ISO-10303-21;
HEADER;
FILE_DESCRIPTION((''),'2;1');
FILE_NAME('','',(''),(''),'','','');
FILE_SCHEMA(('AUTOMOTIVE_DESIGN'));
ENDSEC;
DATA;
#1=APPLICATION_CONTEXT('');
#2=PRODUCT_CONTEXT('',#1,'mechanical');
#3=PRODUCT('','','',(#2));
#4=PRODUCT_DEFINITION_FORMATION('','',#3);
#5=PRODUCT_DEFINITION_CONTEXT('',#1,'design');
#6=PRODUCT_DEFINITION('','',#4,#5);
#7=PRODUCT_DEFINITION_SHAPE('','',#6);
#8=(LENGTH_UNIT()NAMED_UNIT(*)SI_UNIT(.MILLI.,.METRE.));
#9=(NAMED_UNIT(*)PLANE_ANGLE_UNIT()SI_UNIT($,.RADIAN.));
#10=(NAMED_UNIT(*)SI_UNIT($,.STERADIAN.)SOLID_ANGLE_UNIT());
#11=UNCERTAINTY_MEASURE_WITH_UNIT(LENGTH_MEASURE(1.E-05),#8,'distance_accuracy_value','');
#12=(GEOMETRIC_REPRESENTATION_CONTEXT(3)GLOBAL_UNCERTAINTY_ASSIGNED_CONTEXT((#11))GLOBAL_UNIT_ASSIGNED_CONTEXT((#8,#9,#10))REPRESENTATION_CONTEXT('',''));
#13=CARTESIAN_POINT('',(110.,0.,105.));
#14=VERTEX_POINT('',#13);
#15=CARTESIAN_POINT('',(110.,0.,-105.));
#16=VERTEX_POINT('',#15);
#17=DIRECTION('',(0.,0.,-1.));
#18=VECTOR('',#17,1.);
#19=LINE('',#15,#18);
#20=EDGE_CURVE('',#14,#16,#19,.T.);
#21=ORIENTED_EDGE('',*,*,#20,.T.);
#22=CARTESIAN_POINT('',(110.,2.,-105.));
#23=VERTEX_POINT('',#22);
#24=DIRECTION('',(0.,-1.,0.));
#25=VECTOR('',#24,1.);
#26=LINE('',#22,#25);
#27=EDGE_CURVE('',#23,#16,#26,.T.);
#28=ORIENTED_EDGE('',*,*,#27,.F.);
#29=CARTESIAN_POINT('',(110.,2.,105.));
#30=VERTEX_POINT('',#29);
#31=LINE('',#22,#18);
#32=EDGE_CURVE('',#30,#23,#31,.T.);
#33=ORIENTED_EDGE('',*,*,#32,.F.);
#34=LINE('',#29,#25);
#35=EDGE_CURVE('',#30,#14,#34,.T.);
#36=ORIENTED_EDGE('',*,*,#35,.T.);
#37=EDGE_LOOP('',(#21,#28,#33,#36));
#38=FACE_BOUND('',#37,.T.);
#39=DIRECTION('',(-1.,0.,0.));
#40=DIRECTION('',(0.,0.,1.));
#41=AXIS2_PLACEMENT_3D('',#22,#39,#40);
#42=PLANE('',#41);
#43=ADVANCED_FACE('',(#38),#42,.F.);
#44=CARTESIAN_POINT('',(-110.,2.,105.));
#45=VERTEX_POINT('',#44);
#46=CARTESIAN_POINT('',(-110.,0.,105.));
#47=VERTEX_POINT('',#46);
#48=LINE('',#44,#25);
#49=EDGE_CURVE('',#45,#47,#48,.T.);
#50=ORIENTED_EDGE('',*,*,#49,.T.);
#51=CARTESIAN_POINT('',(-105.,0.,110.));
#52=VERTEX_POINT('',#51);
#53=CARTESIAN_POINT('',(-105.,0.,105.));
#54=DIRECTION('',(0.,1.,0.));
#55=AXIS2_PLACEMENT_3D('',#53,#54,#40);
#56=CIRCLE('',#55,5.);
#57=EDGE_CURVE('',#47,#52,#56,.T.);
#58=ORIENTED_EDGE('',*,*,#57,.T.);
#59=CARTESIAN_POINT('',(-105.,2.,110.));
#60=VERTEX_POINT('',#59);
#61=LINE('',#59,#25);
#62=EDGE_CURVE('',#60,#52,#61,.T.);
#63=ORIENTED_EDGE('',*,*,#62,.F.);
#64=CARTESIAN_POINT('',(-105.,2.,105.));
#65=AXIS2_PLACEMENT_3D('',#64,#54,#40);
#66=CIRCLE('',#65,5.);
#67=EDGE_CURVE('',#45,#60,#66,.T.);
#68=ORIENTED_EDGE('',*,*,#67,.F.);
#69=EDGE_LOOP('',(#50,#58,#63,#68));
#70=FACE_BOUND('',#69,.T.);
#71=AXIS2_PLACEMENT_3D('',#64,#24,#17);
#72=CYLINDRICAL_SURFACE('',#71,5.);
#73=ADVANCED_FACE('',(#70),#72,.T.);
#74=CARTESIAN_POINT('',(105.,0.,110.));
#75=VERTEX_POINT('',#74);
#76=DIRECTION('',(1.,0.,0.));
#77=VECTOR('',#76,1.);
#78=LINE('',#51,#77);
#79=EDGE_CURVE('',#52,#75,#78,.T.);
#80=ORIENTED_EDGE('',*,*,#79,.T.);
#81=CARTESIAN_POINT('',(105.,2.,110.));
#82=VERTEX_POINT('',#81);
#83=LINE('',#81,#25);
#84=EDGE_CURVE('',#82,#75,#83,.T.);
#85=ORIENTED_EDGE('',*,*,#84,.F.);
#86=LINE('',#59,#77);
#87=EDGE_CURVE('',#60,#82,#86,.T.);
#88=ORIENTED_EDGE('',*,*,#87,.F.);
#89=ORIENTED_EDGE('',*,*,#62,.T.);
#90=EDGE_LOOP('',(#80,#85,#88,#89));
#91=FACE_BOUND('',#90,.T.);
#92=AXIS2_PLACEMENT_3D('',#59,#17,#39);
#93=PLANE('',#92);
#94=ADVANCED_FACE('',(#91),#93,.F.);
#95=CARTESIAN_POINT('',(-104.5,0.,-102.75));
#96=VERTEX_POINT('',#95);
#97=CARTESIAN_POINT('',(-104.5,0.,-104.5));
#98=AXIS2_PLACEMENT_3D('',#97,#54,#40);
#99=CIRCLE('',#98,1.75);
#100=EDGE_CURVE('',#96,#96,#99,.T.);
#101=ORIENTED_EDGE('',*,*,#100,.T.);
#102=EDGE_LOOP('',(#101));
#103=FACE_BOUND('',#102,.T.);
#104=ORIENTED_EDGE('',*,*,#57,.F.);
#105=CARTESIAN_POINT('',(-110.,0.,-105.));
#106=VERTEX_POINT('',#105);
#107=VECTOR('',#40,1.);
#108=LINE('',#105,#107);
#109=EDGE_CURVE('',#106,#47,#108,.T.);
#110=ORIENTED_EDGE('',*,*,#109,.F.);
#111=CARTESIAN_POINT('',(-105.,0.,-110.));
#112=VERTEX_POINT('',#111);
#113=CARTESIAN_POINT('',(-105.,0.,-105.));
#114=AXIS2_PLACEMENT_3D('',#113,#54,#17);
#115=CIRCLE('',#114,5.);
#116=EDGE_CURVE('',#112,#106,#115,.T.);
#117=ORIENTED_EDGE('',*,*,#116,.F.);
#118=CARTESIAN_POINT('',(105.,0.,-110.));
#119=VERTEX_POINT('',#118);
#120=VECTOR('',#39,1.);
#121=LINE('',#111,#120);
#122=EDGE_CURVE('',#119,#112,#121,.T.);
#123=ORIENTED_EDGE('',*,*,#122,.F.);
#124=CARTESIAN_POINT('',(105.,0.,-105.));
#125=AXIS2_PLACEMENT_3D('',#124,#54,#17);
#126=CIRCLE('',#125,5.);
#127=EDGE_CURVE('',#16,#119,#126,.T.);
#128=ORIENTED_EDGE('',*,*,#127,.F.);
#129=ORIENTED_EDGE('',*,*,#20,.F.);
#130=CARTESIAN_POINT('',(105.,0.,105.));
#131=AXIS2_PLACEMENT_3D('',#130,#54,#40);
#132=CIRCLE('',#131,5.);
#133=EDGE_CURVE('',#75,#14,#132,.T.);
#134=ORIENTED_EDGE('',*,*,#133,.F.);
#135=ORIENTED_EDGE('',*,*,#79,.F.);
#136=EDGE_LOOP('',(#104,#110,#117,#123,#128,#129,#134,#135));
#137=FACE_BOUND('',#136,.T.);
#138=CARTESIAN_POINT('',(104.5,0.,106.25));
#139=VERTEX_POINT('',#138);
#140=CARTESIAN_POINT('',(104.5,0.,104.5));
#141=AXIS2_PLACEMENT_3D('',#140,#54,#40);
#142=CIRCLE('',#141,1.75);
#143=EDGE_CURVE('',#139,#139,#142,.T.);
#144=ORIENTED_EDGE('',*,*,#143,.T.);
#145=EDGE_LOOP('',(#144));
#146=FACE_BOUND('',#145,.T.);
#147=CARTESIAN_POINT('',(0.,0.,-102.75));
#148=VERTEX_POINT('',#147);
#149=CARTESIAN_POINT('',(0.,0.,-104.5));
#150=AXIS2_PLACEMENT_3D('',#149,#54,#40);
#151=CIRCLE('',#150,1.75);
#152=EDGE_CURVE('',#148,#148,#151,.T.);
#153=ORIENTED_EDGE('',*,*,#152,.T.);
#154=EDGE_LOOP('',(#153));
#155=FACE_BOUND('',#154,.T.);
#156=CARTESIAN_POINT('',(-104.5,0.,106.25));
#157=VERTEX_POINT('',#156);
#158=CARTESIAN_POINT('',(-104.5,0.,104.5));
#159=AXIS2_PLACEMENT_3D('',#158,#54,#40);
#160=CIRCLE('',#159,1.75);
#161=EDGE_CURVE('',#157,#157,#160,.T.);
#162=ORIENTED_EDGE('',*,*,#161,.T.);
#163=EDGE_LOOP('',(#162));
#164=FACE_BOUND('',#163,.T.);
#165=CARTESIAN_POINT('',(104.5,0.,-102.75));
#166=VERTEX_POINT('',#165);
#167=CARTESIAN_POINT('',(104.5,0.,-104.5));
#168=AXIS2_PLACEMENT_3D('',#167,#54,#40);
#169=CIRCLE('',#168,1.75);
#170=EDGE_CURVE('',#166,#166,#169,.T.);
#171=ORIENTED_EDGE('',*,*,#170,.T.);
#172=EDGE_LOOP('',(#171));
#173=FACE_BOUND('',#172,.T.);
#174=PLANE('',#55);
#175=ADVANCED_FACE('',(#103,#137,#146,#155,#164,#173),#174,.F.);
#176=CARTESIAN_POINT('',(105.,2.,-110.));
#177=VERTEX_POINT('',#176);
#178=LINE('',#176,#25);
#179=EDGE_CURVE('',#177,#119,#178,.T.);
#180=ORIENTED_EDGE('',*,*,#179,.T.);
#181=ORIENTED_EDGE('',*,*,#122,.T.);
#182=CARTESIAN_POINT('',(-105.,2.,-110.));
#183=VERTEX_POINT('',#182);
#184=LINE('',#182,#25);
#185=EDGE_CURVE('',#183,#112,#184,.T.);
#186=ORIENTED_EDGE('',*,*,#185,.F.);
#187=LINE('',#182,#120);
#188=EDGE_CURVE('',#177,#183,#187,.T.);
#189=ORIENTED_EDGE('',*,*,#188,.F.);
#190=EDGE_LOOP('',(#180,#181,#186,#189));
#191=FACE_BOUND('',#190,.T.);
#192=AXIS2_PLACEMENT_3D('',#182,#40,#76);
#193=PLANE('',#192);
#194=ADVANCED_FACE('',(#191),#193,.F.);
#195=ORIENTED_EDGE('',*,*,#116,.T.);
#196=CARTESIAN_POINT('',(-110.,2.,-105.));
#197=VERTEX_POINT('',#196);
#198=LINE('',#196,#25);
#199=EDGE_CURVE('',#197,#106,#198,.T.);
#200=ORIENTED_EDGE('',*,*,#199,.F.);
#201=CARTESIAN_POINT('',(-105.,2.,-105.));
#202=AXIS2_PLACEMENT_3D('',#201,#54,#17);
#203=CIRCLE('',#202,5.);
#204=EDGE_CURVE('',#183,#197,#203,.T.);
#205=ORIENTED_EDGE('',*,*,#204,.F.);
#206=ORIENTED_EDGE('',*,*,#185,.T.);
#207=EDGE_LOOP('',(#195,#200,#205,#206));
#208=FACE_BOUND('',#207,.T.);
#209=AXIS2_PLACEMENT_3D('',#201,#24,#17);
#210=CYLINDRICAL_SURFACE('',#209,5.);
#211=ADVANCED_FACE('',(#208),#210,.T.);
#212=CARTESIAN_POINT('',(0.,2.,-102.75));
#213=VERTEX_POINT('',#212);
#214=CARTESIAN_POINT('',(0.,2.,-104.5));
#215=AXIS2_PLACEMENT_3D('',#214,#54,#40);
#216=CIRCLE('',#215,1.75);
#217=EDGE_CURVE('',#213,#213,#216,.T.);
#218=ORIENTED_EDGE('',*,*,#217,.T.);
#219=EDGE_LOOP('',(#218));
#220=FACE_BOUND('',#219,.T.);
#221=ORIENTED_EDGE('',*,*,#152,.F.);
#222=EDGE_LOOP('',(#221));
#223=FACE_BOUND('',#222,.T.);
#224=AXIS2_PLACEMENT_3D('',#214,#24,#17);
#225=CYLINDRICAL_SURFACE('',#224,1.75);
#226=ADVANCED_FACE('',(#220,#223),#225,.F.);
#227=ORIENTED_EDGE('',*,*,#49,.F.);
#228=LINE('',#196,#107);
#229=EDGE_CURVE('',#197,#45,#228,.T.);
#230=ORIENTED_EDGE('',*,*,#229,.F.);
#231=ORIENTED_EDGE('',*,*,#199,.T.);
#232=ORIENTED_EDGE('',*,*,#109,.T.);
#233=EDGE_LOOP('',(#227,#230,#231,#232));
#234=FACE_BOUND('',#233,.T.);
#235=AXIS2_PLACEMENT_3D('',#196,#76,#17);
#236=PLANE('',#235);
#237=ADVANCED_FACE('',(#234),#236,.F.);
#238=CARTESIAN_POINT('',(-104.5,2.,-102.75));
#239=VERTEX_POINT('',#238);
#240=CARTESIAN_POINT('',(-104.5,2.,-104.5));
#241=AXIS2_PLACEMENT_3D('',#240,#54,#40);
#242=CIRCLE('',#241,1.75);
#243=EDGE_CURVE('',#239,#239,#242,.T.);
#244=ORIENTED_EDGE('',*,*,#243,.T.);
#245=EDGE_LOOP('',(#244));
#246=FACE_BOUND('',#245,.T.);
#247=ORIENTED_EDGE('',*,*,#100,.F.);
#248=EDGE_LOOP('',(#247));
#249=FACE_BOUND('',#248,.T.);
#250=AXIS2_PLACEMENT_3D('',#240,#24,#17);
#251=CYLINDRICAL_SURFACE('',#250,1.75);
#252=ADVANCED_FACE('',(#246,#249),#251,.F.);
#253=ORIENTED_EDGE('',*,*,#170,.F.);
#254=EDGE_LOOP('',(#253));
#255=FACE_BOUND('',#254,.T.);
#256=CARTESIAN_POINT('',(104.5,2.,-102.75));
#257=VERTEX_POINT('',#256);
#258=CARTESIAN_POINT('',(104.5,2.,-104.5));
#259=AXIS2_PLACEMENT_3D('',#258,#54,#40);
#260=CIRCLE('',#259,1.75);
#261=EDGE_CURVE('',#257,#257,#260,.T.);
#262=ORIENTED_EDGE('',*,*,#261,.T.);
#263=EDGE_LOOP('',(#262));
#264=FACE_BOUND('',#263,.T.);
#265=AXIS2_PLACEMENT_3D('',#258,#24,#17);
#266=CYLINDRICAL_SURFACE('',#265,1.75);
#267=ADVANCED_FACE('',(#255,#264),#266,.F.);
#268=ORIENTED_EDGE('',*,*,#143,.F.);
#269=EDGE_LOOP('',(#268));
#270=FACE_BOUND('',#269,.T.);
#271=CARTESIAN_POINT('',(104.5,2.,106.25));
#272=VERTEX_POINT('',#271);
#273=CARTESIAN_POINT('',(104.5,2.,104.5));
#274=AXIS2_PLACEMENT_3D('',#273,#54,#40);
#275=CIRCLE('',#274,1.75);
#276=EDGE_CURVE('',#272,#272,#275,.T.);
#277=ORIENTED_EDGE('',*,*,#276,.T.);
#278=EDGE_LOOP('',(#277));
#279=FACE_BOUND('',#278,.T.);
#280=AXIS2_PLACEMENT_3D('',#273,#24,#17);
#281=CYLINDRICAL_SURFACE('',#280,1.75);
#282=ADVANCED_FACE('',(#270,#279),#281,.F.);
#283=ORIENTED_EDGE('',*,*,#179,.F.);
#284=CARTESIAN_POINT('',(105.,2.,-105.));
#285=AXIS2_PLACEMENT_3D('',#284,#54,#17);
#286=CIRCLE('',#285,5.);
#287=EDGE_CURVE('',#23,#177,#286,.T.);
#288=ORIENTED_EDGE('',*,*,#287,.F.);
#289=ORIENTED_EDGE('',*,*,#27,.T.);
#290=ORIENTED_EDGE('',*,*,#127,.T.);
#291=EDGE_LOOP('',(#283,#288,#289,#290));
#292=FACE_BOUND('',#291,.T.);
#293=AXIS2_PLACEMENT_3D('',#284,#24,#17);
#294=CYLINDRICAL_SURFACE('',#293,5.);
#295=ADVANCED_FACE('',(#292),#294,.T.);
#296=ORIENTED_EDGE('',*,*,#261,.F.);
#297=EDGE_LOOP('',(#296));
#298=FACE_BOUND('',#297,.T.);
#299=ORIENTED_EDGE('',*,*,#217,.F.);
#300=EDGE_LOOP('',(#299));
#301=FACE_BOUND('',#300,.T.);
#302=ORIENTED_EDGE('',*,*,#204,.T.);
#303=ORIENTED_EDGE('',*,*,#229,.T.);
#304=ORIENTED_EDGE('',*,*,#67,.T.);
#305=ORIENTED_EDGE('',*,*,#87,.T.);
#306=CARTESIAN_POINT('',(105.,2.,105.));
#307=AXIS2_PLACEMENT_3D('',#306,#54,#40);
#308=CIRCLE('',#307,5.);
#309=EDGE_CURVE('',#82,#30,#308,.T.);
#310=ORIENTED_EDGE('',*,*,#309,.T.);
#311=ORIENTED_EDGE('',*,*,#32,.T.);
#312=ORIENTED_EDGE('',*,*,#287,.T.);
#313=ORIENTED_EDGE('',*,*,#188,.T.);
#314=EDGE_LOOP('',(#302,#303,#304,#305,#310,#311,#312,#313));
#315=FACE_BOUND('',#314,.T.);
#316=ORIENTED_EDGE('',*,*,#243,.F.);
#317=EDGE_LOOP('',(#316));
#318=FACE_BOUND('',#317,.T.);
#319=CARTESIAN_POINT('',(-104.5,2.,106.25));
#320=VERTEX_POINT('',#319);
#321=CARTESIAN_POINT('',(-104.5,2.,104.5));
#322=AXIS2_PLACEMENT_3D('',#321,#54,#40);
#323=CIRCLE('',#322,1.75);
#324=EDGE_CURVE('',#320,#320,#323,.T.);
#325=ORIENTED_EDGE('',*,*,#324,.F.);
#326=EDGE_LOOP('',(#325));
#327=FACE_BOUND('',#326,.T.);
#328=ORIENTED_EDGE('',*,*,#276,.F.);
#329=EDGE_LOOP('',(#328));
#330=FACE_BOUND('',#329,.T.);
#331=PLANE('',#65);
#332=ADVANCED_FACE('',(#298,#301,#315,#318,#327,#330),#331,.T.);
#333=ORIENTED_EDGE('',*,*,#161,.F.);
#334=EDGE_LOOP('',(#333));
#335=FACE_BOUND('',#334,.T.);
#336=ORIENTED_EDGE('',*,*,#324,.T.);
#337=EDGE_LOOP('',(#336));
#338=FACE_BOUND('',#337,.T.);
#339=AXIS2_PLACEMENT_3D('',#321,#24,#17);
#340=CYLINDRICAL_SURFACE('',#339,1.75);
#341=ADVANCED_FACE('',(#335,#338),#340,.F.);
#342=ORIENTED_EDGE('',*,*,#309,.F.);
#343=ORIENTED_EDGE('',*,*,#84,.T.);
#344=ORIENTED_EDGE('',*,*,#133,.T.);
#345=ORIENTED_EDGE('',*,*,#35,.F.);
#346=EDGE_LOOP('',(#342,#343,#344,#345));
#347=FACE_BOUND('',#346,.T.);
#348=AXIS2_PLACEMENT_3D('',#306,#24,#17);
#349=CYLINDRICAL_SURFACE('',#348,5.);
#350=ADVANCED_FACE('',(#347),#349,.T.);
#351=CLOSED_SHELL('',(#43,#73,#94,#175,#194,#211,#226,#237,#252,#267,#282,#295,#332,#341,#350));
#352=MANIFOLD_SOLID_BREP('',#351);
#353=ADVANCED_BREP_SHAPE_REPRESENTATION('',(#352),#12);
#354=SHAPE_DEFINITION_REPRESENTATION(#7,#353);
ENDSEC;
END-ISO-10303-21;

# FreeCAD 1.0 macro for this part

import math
import FreeCAD as App
import Part
import Sketcher

V = App.Vector

doc = App.newDocument("Part")
body = doc.addObject("PartDesign::Body", "Body")

# Sketch on XZ plane
sketch1 = body.newObject("Sketcher::SketchObject", "Sketch")
sketch1.AttachmentSupport = (doc.getObject("XZ_Plane"), [""])
sketch1.MapMode = "FlatFace"
sketch1.addGeometry([
    Part.LineSegment(V(105, -110, 0), V(-105, -110, 0)),  # 0
    Part.ArcOfCircle(Part.Circle(V(-105, -105, 0), V(0, 0, 1), 5), math.radians(180), math.radians(270)),  # 1
    Part.LineSegment(V(-110, -105, 0), V(-110, 105, 0)),  # 2
    Part.ArcOfCircle(Part.Circle(V(-105, 105, 0), V(0, 0, 1), 5), math.radians(90), math.radians(180)),  # 3
    Part.LineSegment(V(-105, 110, 0), V(105, 110, 0)),  # 4
    Part.ArcOfCircle(Part.Circle(V(105, 105, 0), V(0, 0, 1), 5), math.radians(0), math.radians(90)),  # 5
    Part.LineSegment(V(110, 105, 0), V(110, -105, 0)),  # 6
    Part.ArcOfCircle(Part.Circle(V(105, -105, 0), V(0, 0, 1), 5), math.radians(-90), math.radians(0)),  # 7
    Part.Circle(V(104.5, 104.5, 0), V(0, 0, 1), 1.8),  # 8
    Part.Circle(V(-104.5, 104.5, 0), V(0, 0, 1), 1.8),  # 9
    Part.Circle(V(104.5, -104.5, 0), V(0, 0, 1), 1.8),  # 10
    Part.Circle(V(0, -104.5, 0), V(0, 0, 1), 1.8),  # 11
    Part.Circle(V(-104.5, -104.5, 0), V(0, 0, 1), 1.8),  # 12
], False)
sketch1.addConstraint([
    Sketcher.Constraint("Tangent", 0, 2, 1, 2),
    Sketcher.Constraint("Tangent", 1, 1, 2, 1),
    Sketcher.Constraint("Tangent", 2, 2, 3, 2),
    Sketcher.Constraint("Tangent", 3, 1, 4, 1),
    Sketcher.Constraint("Tangent", 4, 2, 5, 2),
    Sketcher.Constraint("Tangent", 5, 1, 6, 1),
    Sketcher.Constraint("Tangent", 6, 2, 7, 2),
    Sketcher.Constraint("Tangent", 7, 1, 0, 1),
    Sketcher.Constraint("Horizontal", 0),
    Sketcher.Constraint("Vertical", 2),
    Sketcher.Constraint("Horizontal", 4),
    Sketcher.Constraint("Vertical", 6),
    Sketcher.Constraint("Equal", 1, 3),
    Sketcher.Constraint("Equal", 3, 5),
    Sketcher.Constraint("Equal", 5, 7),
    Sketcher.Constraint("Equal", 8, 9),
    Sketcher.Constraint("Equal", 9, 10),
    Sketcher.Constraint("Equal", 10, 11),
    Sketcher.Constraint("Equal", 11, 12),
    Sketcher.Constraint("Symmetric", 1, 3, 5, 3, -1, 1),
    Sketcher.Constraint("Symmetric", 9, 3, 10, 3, -1, 1),
    Sketcher.Constraint("Symmetric", 8, 3, 12, 3, -1, 1),
    Sketcher.Constraint("Symmetric", 8, 3, 9, 3, -2),
    Sketcher.Constraint("PointOnObject", 11, 3, -2),
    Sketcher.Constraint("Horizontal", 10, 3, 11, 3),
    Sketcher.Constraint("Equal", 4, 2),
    Sketcher.Constraint("Radius", 1, 5.0),
    Sketcher.Constraint("Diameter", 8, 3.5),
    Sketcher.Constraint("DistanceX", 0, 2, 0, 1, 210.0),
    Sketcher.Constraint("DistanceX", 9, 3, 8, 3, 209.0),
    Sketcher.Constraint("DistanceY", 10, 3, 8, 3, 209.0),
])
pad1 = body.newObject("PartDesign::Pad", "Pad")
pad1.Profile = sketch1
pad1.Length = 2
pad1.Reversed = True

doc.recompute()
